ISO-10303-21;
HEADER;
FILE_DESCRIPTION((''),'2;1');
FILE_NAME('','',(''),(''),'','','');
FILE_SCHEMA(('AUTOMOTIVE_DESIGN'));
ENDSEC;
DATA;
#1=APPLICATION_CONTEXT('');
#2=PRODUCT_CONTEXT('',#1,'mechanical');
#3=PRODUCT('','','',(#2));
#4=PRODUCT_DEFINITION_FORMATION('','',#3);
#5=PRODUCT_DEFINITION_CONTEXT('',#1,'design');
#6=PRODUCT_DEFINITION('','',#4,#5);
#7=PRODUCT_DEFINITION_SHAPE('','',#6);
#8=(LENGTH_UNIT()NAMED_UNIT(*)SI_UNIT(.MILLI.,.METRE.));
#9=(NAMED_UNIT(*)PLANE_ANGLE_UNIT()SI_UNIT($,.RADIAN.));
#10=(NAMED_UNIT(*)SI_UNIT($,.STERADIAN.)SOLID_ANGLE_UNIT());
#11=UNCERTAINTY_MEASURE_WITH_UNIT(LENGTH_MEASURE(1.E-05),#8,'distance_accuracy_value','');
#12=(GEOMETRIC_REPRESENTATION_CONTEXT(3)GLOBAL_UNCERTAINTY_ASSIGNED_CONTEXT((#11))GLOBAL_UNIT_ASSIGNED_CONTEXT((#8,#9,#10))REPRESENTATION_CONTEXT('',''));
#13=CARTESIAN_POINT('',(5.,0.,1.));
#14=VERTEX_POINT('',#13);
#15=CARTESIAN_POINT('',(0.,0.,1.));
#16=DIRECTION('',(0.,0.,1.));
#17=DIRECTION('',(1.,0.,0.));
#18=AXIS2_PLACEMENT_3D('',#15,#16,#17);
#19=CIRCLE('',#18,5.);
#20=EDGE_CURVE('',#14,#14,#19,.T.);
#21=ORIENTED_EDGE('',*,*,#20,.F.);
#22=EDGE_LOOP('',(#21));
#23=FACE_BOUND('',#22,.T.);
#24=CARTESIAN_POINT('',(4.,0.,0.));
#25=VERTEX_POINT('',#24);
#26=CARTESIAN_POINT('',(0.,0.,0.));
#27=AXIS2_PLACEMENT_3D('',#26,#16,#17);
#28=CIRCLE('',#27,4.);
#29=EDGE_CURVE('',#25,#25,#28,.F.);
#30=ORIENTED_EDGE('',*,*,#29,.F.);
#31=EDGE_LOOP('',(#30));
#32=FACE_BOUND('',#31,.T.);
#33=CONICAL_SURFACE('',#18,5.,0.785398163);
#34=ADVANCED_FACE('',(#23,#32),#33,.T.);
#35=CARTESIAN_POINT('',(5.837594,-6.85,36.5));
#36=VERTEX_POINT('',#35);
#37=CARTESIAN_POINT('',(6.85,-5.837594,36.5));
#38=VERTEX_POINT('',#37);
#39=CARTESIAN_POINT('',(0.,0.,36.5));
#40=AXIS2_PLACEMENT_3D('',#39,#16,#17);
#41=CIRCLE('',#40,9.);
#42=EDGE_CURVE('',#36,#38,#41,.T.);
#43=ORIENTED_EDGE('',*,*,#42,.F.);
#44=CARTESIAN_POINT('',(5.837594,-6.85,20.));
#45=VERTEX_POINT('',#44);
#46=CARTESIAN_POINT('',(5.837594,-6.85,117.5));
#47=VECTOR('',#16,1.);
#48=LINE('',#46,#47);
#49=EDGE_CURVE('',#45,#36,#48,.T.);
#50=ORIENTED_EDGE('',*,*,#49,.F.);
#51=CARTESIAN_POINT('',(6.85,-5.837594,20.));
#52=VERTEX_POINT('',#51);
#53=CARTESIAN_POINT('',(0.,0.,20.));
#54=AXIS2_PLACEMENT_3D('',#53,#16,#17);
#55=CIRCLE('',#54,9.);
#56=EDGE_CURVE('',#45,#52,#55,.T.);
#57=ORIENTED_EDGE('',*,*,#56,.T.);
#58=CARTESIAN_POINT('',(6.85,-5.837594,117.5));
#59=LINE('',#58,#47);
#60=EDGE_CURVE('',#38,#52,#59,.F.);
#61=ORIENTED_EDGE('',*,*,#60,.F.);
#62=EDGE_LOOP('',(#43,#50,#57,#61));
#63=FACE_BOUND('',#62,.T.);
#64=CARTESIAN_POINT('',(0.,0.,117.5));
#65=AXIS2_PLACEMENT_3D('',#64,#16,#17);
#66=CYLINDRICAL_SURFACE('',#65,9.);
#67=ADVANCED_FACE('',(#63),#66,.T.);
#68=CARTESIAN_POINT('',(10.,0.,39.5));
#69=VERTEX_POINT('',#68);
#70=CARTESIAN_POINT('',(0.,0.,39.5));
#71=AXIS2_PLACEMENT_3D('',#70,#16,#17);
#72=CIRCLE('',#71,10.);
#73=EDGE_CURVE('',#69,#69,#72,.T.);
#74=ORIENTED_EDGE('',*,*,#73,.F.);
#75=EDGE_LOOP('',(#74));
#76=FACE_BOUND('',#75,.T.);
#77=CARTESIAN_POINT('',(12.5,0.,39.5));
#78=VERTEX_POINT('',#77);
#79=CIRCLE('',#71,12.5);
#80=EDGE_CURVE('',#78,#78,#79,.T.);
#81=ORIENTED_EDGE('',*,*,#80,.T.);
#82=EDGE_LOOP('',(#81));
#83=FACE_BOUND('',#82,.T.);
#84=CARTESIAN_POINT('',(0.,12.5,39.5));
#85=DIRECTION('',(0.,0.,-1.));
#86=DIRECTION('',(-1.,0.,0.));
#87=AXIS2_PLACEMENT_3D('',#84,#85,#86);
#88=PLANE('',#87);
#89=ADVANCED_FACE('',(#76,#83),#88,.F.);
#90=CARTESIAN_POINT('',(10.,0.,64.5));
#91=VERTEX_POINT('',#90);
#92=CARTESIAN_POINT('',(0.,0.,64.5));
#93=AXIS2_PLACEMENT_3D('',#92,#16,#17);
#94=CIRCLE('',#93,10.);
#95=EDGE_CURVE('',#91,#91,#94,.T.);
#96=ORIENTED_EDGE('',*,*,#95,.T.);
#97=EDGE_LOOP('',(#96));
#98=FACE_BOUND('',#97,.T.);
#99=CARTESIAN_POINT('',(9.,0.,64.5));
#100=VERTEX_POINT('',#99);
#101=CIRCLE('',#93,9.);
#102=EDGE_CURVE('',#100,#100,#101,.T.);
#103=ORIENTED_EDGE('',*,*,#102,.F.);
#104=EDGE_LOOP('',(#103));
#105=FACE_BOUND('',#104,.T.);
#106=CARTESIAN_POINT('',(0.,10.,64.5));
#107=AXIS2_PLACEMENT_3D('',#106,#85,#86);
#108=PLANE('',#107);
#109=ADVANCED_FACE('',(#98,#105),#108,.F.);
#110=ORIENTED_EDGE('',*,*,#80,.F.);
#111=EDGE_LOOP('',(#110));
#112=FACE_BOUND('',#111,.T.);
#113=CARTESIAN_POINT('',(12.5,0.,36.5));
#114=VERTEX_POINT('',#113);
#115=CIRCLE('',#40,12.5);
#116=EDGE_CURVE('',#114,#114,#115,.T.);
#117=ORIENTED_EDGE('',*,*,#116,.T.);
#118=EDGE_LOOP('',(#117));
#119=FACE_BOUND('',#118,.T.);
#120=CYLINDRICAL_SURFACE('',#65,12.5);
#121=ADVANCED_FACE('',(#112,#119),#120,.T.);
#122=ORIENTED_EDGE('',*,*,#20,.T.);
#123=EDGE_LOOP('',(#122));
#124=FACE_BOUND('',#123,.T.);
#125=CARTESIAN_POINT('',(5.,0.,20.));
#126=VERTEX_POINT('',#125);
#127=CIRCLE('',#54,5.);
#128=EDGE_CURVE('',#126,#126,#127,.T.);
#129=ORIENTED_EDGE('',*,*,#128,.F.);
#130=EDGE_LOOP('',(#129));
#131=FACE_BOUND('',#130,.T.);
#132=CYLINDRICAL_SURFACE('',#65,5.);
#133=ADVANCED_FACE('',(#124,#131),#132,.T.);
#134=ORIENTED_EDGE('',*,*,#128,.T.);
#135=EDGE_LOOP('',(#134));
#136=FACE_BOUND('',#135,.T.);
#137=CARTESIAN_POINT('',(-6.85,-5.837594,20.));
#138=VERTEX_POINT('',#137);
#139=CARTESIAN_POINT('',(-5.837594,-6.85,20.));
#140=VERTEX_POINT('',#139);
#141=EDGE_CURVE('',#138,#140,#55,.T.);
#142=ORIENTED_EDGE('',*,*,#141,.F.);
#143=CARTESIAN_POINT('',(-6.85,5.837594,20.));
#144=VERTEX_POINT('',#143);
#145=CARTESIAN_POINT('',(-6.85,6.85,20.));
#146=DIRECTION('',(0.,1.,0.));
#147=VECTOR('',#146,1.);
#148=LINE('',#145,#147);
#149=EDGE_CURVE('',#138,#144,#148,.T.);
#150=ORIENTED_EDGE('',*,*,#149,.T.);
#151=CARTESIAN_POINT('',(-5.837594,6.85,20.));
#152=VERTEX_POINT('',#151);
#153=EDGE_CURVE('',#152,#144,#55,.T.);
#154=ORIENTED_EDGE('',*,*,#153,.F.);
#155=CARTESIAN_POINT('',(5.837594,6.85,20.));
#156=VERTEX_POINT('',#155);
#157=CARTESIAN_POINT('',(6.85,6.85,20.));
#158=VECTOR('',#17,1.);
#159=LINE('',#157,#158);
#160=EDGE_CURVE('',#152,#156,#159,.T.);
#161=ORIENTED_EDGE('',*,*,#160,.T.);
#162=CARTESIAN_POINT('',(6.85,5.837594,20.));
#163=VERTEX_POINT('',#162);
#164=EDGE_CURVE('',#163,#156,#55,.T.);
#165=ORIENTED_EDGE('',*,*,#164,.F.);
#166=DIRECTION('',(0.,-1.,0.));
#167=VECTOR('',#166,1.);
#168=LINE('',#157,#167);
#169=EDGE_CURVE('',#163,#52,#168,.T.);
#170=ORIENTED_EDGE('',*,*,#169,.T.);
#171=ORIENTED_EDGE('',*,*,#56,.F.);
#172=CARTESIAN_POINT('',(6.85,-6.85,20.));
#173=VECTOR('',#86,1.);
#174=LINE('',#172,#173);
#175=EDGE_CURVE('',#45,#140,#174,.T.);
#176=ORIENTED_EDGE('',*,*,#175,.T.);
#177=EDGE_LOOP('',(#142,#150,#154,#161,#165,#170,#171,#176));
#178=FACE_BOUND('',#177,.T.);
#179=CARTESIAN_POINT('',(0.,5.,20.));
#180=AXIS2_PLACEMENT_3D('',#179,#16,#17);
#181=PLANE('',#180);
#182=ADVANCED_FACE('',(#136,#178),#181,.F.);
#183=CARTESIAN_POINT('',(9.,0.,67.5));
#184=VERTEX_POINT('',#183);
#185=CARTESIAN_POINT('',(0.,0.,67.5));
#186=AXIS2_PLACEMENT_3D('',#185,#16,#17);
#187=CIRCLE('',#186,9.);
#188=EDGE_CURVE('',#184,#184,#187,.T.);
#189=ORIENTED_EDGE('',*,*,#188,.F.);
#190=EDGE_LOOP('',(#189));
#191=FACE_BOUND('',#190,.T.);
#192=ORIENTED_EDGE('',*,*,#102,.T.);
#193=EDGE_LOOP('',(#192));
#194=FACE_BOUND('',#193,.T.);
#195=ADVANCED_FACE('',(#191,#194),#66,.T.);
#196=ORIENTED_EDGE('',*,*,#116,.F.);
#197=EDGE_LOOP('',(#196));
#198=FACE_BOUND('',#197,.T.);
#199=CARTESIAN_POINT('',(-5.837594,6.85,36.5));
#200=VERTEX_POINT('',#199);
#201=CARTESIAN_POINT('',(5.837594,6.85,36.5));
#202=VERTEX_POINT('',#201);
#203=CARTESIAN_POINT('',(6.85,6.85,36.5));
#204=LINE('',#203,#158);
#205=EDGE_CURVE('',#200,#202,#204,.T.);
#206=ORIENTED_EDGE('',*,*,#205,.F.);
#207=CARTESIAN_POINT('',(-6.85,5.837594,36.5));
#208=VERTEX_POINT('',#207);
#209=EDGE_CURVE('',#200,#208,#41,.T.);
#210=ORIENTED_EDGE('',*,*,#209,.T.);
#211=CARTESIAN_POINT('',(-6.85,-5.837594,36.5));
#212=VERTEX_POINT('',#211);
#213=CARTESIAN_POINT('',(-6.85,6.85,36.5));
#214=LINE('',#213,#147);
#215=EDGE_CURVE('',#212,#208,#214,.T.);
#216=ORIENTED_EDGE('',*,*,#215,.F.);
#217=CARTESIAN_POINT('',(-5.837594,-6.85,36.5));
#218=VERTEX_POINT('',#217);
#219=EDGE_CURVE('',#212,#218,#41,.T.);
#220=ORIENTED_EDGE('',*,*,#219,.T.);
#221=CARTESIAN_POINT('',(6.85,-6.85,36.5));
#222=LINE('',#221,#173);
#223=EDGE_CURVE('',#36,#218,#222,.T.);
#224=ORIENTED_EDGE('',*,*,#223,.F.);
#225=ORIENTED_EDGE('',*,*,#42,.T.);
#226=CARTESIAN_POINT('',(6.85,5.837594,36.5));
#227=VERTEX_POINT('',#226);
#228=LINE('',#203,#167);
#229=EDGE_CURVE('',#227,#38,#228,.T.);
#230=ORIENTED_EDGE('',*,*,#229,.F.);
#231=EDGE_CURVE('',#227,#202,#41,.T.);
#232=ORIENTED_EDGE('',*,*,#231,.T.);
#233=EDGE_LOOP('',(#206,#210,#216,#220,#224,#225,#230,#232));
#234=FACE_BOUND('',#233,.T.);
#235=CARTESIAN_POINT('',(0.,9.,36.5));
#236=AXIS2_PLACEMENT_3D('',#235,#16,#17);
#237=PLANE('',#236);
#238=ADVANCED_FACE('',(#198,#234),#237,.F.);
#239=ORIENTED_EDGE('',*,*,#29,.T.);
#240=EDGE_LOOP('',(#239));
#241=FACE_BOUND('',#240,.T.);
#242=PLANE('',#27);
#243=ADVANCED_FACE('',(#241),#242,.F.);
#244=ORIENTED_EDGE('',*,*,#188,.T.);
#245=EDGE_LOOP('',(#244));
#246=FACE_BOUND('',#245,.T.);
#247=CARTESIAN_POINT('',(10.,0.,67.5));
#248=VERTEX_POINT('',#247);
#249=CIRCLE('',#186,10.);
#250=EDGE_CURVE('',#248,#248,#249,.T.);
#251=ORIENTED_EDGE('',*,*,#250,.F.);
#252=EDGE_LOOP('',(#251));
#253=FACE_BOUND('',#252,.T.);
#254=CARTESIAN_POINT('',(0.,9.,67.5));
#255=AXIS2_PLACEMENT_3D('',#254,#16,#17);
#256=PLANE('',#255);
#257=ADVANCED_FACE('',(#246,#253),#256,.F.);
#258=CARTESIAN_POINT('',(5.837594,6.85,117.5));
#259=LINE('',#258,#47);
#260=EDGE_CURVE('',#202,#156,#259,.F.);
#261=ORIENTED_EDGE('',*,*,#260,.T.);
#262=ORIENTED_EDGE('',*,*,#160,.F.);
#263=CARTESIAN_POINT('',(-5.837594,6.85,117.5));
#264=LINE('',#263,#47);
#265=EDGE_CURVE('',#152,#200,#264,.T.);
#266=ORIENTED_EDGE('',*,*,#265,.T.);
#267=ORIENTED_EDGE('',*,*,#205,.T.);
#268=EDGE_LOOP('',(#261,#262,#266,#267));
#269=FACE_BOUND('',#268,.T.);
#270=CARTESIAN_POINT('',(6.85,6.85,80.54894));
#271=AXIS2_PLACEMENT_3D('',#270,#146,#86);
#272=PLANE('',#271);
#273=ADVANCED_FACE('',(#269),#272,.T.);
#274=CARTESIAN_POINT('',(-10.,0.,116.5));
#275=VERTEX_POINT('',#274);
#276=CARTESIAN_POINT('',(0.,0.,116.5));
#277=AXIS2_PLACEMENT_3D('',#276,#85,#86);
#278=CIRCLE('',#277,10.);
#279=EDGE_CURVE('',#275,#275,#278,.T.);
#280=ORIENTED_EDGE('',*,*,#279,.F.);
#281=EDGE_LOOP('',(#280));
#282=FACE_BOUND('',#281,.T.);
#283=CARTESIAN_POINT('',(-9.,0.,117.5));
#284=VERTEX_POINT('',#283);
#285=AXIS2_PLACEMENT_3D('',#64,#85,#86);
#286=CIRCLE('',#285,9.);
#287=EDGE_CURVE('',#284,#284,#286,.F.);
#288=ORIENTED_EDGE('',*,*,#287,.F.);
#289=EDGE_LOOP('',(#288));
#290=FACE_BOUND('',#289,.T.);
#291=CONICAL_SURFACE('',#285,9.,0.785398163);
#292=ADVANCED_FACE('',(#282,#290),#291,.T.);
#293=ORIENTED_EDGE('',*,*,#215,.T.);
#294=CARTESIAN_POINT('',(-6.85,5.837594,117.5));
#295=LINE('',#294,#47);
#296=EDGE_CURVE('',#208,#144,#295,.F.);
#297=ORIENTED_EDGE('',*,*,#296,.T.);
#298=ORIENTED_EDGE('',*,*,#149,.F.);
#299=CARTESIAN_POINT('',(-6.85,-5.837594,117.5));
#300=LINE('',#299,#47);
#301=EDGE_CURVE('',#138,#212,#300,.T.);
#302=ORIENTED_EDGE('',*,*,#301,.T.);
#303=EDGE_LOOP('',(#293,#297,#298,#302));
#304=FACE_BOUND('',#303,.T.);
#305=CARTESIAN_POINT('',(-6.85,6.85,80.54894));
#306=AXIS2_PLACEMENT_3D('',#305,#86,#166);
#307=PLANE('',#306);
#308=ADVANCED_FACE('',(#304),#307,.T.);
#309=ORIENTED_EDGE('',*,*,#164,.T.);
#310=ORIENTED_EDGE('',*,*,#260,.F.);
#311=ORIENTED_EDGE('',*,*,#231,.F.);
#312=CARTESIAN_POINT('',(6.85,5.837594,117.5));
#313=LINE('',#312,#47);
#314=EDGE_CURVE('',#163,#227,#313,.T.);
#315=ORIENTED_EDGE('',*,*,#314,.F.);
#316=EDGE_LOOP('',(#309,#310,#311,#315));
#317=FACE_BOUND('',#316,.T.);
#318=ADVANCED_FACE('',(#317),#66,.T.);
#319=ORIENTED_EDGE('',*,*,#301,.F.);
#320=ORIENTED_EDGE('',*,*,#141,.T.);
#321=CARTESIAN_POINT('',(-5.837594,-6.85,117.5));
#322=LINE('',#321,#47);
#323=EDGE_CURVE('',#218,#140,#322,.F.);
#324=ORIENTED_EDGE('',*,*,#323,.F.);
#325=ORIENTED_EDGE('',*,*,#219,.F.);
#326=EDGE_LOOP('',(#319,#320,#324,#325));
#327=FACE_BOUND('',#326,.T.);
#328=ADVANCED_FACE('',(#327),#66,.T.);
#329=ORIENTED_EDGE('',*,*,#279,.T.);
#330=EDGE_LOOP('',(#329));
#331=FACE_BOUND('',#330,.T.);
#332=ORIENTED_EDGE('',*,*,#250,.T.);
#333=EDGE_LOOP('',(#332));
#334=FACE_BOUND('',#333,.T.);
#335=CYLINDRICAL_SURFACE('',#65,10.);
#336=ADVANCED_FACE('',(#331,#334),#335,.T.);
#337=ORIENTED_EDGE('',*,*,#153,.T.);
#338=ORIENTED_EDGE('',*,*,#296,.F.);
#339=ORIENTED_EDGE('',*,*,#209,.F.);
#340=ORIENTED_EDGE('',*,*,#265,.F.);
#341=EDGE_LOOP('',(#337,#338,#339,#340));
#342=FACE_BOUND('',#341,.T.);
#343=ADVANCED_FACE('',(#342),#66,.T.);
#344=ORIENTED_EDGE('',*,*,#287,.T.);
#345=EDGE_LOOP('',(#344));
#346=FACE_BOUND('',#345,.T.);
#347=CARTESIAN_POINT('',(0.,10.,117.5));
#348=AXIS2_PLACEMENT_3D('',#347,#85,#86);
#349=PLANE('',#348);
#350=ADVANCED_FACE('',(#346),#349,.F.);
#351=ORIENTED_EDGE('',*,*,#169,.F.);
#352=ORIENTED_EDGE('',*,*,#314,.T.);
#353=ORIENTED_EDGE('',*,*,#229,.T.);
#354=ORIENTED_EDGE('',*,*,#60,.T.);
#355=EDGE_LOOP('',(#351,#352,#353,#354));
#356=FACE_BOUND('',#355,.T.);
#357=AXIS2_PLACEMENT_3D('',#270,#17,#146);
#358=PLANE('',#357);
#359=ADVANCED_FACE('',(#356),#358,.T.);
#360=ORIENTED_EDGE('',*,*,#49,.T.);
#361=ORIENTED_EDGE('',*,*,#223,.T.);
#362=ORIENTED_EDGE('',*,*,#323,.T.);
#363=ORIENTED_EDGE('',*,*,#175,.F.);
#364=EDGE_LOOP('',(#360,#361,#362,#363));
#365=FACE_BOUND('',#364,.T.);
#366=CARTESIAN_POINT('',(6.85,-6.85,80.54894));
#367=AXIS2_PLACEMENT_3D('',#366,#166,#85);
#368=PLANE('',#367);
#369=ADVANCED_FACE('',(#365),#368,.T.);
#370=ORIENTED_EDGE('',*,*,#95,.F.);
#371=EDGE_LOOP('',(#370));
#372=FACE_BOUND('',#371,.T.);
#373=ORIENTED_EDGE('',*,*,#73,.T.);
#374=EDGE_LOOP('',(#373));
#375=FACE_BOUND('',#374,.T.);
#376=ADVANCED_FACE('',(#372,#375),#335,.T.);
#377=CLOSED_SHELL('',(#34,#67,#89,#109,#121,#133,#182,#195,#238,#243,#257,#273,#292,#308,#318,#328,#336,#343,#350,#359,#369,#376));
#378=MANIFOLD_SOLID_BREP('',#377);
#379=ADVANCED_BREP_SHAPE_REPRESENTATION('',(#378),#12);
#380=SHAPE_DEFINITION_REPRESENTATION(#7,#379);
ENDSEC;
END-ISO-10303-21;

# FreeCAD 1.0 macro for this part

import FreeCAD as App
import Part
import Sketcher
Q = App.Units.Quantity


def edges_at(feature, points):
    """Names of the edges that pass closest to the given points."""
    edges = feature.Shape.Edges
    near = lambda p: min(range(len(edges)), key=lambda i: edges[i].distToShape(Part.Vertex(*p))[0])
    return sorted({f"Edge{near(p) + 1}" for p in points})

doc = App.newDocument("Part")
body = doc.addObject("PartDesign::Body", "Body")

# Sketch on YZ plane
sketch1 = body.newObject("Sketcher::SketchObject", "Sketch")
sketch1.AttachmentSupport = (doc.getObject("YZ_Plane"), [""])
sketch1.MapMode = "FlatFace"
sketch1.addGeometry([
    Part.LineSegment(App.Vector(0, 117.5, 0), App.Vector(0, 0, 0)),  # 0
    Part.LineSegment(App.Vector(0, 0, 0), App.Vector(5, 0, 0)),  # 1
    Part.LineSegment(App.Vector(5, 0, 0), App.Vector(5, 20, 0)),  # 2
    Part.LineSegment(App.Vector(5, 20, 0), App.Vector(9, 20, 0)),  # 3
    Part.LineSegment(App.Vector(9, 20, 0), App.Vector(9, 36.5, 0)),  # 4
    Part.LineSegment(App.Vector(9, 36.5, 0), App.Vector(12.5, 36.5, 0)),  # 5
    Part.LineSegment(App.Vector(12.5, 36.5, 0), App.Vector(12.5, 39.5, 0)),  # 6
    Part.LineSegment(App.Vector(12.5, 39.5, 0), App.Vector(10, 39.5, 0)),  # 7
    Part.LineSegment(App.Vector(10, 39.5, 0), App.Vector(10, 64.5, 0)),  # 8
    Part.LineSegment(App.Vector(10, 64.5, 0), App.Vector(9, 64.5, 0)),  # 9
    Part.LineSegment(App.Vector(9, 64.5, 0), App.Vector(9, 67.5, 0)),  # 10
    Part.LineSegment(App.Vector(9, 67.5, 0), App.Vector(10, 67.5, 0)),  # 11
    Part.LineSegment(App.Vector(10, 67.5, 0), App.Vector(10, 117.5, 0)),  # 12
    Part.LineSegment(App.Vector(10, 117.5, 0), App.Vector(0, 117.5, 0)),  # 13
], False)
sketch1.addConstraint([
    Sketcher.Constraint("Coincident", 0, 2, 1, 1),
    Sketcher.Constraint("Coincident", 1, 2, 2, 1),
    Sketcher.Constraint("Coincident", 2, 2, 3, 1),
    Sketcher.Constraint("Coincident", 3, 2, 4, 1),
    Sketcher.Constraint("Coincident", 4, 2, 5, 1),
    Sketcher.Constraint("Coincident", 5, 2, 6, 1),
    Sketcher.Constraint("Coincident", 6, 2, 7, 1),
    Sketcher.Constraint("Coincident", 7, 2, 8, 1),
    Sketcher.Constraint("Coincident", 8, 2, 9, 1),
    Sketcher.Constraint("Coincident", 9, 2, 10, 1),
    Sketcher.Constraint("Coincident", 10, 2, 11, 1),
    Sketcher.Constraint("Coincident", 11, 2, 12, 1),
    Sketcher.Constraint("Coincident", 12, 2, 13, 1),
    Sketcher.Constraint("Coincident", 13, 2, 0, 1),
    Sketcher.Constraint("Vertical", 0),
    Sketcher.Constraint("Horizontal", 1),
    Sketcher.Constraint("Vertical", 2),
    Sketcher.Constraint("Horizontal", 3),
    Sketcher.Constraint("Vertical", 4),
    Sketcher.Constraint("Horizontal", 5),
    Sketcher.Constraint("Vertical", 6),
    Sketcher.Constraint("Horizontal", 7),
    Sketcher.Constraint("Vertical", 8),
    Sketcher.Constraint("Horizontal", 9),
    Sketcher.Constraint("Vertical", 10),
    Sketcher.Constraint("Horizontal", 11),
    Sketcher.Constraint("Vertical", 12),
    Sketcher.Constraint("Horizontal", 13),
    Sketcher.Constraint("Coincident", 0, 2, -1, 1),
    Sketcher.Constraint("Vertical", 4, 2, 9, 2),
    Sketcher.Constraint("Vertical", 8, 2, 11, 2),
    Sketcher.Constraint("Equal", 6, 10),
    Sketcher.Constraint("DistanceX", 1, 1, 1, 2, Q("5 mm")),
    Sketcher.Constraint("DistanceX", 3, 1, 3, 2, Q("4 mm")),
    Sketcher.Constraint("DistanceX", 9, 2, 9, 1, Q("1 mm")),
    Sketcher.Constraint("DistanceY", 2, 1, 2, 2, Q("20 mm")),
    Sketcher.Constraint("DistanceY", 6, 1, 6, 2, Q("3 mm")),
    Sketcher.Constraint("DistanceY", 8, 1, 8, 2, Q("25 mm")),
    Sketcher.Constraint("DistanceY", 12, 1, 12, 2, Q("50 mm")),
    Sketcher.Constraint("DistanceX", 5, 1, 5, 2, Q("3.5 mm")),
    Sketcher.Constraint("DistanceY", 0, 2, 0, 1, Q("117.5 mm")),
])
revolution = body.newObject("PartDesign::Revolution", "Revolution")
revolution.Profile = sketch1
revolution.ReferenceAxis = (sketch1, ["V_Axis"])
revolution.Angle = 360

# Sketch on XY plane
sketch2 = body.newObject("Sketcher::SketchObject", "Sketch001")
sketch2.AttachmentSupport = (doc.getObject("XY_Plane"), [""])
sketch2.MapMode = "FlatFace"
sketch2.AttachmentOffset = App.Placement(App.Vector(0, 0, 20), App.Rotation())
sketch2.addGeometry([
    Part.LineSegment(App.Vector(25.77, 25.77, 0), App.Vector(25.77, -25.77, 0)),  # 0
    Part.LineSegment(App.Vector(25.77, -25.77, 0), App.Vector(-25.77, -25.77, 0)),  # 1
    Part.LineSegment(App.Vector(-25.77, -25.77, 0), App.Vector(-25.77, 25.77, 0)),  # 2
    Part.LineSegment(App.Vector(-25.77, 25.77, 0), App.Vector(25.77, 25.77, 0)),  # 3
    Part.LineSegment(App.Vector(-6.85, -6.85, 0), App.Vector(6.85, -6.85, 0)),  # 4
    Part.LineSegment(App.Vector(6.85, -6.85, 0), App.Vector(6.85, 6.85, 0)),  # 5
    Part.LineSegment(App.Vector(6.85, 6.85, 0), App.Vector(-6.85, 6.85, 0)),  # 6
    Part.LineSegment(App.Vector(-6.85, 6.85, 0), App.Vector(-6.85, -6.85, 0)),  # 7
], False)
sketch2.addConstraint([
    Sketcher.Constraint("Coincident", 0, 2, 1, 1),
    Sketcher.Constraint("Coincident", 1, 2, 2, 1),
    Sketcher.Constraint("Coincident", 2, 2, 3, 1),
    Sketcher.Constraint("Coincident", 3, 2, 0, 1),
    Sketcher.Constraint("Coincident", 4, 2, 5, 1),
    Sketcher.Constraint("Coincident", 5, 2, 6, 1),
    Sketcher.Constraint("Coincident", 6, 2, 7, 1),
    Sketcher.Constraint("Coincident", 7, 2, 4, 1),
    Sketcher.Constraint("Vertical", 0),
    Sketcher.Constraint("Horizontal", 1),
    Sketcher.Constraint("Vertical", 2),
    Sketcher.Constraint("Horizontal", 3),
    Sketcher.Constraint("Horizontal", 4),
    Sketcher.Constraint("Vertical", 5),
    Sketcher.Constraint("Horizontal", 6),
    Sketcher.Constraint("Vertical", 7),
    Sketcher.Constraint("Symmetric", 0, 2, 2, 2, -1, 1),
    Sketcher.Constraint("Symmetric", 4, 2, 6, 2, -1, 1),
    Sketcher.Constraint("Equal", 3, 0),
    Sketcher.Constraint("Equal", 6, 5),
    Sketcher.Constraint("DistanceX", 4, 1, 4, 2, Q("13.7 mm")),
    Sketcher.Constraint("DistanceX", 1, 2, 1, 1, Q("51.54 mm")),
])
pocket1 = body.newObject("PartDesign::Pocket", "Pocket")
pocket1.Profile = sketch2
pocket1.Length = 16.5
pocket1.Reversed = True
doc.recompute()

chamfer = body.newObject("PartDesign::Chamfer", "Chamfer")
chamfer.Base = (pocket1, edges_at(pocket1, [(-5, 0, 0), (-10, 0, 117.5)]))
chamfer.Size = 1

doc.recompute()
